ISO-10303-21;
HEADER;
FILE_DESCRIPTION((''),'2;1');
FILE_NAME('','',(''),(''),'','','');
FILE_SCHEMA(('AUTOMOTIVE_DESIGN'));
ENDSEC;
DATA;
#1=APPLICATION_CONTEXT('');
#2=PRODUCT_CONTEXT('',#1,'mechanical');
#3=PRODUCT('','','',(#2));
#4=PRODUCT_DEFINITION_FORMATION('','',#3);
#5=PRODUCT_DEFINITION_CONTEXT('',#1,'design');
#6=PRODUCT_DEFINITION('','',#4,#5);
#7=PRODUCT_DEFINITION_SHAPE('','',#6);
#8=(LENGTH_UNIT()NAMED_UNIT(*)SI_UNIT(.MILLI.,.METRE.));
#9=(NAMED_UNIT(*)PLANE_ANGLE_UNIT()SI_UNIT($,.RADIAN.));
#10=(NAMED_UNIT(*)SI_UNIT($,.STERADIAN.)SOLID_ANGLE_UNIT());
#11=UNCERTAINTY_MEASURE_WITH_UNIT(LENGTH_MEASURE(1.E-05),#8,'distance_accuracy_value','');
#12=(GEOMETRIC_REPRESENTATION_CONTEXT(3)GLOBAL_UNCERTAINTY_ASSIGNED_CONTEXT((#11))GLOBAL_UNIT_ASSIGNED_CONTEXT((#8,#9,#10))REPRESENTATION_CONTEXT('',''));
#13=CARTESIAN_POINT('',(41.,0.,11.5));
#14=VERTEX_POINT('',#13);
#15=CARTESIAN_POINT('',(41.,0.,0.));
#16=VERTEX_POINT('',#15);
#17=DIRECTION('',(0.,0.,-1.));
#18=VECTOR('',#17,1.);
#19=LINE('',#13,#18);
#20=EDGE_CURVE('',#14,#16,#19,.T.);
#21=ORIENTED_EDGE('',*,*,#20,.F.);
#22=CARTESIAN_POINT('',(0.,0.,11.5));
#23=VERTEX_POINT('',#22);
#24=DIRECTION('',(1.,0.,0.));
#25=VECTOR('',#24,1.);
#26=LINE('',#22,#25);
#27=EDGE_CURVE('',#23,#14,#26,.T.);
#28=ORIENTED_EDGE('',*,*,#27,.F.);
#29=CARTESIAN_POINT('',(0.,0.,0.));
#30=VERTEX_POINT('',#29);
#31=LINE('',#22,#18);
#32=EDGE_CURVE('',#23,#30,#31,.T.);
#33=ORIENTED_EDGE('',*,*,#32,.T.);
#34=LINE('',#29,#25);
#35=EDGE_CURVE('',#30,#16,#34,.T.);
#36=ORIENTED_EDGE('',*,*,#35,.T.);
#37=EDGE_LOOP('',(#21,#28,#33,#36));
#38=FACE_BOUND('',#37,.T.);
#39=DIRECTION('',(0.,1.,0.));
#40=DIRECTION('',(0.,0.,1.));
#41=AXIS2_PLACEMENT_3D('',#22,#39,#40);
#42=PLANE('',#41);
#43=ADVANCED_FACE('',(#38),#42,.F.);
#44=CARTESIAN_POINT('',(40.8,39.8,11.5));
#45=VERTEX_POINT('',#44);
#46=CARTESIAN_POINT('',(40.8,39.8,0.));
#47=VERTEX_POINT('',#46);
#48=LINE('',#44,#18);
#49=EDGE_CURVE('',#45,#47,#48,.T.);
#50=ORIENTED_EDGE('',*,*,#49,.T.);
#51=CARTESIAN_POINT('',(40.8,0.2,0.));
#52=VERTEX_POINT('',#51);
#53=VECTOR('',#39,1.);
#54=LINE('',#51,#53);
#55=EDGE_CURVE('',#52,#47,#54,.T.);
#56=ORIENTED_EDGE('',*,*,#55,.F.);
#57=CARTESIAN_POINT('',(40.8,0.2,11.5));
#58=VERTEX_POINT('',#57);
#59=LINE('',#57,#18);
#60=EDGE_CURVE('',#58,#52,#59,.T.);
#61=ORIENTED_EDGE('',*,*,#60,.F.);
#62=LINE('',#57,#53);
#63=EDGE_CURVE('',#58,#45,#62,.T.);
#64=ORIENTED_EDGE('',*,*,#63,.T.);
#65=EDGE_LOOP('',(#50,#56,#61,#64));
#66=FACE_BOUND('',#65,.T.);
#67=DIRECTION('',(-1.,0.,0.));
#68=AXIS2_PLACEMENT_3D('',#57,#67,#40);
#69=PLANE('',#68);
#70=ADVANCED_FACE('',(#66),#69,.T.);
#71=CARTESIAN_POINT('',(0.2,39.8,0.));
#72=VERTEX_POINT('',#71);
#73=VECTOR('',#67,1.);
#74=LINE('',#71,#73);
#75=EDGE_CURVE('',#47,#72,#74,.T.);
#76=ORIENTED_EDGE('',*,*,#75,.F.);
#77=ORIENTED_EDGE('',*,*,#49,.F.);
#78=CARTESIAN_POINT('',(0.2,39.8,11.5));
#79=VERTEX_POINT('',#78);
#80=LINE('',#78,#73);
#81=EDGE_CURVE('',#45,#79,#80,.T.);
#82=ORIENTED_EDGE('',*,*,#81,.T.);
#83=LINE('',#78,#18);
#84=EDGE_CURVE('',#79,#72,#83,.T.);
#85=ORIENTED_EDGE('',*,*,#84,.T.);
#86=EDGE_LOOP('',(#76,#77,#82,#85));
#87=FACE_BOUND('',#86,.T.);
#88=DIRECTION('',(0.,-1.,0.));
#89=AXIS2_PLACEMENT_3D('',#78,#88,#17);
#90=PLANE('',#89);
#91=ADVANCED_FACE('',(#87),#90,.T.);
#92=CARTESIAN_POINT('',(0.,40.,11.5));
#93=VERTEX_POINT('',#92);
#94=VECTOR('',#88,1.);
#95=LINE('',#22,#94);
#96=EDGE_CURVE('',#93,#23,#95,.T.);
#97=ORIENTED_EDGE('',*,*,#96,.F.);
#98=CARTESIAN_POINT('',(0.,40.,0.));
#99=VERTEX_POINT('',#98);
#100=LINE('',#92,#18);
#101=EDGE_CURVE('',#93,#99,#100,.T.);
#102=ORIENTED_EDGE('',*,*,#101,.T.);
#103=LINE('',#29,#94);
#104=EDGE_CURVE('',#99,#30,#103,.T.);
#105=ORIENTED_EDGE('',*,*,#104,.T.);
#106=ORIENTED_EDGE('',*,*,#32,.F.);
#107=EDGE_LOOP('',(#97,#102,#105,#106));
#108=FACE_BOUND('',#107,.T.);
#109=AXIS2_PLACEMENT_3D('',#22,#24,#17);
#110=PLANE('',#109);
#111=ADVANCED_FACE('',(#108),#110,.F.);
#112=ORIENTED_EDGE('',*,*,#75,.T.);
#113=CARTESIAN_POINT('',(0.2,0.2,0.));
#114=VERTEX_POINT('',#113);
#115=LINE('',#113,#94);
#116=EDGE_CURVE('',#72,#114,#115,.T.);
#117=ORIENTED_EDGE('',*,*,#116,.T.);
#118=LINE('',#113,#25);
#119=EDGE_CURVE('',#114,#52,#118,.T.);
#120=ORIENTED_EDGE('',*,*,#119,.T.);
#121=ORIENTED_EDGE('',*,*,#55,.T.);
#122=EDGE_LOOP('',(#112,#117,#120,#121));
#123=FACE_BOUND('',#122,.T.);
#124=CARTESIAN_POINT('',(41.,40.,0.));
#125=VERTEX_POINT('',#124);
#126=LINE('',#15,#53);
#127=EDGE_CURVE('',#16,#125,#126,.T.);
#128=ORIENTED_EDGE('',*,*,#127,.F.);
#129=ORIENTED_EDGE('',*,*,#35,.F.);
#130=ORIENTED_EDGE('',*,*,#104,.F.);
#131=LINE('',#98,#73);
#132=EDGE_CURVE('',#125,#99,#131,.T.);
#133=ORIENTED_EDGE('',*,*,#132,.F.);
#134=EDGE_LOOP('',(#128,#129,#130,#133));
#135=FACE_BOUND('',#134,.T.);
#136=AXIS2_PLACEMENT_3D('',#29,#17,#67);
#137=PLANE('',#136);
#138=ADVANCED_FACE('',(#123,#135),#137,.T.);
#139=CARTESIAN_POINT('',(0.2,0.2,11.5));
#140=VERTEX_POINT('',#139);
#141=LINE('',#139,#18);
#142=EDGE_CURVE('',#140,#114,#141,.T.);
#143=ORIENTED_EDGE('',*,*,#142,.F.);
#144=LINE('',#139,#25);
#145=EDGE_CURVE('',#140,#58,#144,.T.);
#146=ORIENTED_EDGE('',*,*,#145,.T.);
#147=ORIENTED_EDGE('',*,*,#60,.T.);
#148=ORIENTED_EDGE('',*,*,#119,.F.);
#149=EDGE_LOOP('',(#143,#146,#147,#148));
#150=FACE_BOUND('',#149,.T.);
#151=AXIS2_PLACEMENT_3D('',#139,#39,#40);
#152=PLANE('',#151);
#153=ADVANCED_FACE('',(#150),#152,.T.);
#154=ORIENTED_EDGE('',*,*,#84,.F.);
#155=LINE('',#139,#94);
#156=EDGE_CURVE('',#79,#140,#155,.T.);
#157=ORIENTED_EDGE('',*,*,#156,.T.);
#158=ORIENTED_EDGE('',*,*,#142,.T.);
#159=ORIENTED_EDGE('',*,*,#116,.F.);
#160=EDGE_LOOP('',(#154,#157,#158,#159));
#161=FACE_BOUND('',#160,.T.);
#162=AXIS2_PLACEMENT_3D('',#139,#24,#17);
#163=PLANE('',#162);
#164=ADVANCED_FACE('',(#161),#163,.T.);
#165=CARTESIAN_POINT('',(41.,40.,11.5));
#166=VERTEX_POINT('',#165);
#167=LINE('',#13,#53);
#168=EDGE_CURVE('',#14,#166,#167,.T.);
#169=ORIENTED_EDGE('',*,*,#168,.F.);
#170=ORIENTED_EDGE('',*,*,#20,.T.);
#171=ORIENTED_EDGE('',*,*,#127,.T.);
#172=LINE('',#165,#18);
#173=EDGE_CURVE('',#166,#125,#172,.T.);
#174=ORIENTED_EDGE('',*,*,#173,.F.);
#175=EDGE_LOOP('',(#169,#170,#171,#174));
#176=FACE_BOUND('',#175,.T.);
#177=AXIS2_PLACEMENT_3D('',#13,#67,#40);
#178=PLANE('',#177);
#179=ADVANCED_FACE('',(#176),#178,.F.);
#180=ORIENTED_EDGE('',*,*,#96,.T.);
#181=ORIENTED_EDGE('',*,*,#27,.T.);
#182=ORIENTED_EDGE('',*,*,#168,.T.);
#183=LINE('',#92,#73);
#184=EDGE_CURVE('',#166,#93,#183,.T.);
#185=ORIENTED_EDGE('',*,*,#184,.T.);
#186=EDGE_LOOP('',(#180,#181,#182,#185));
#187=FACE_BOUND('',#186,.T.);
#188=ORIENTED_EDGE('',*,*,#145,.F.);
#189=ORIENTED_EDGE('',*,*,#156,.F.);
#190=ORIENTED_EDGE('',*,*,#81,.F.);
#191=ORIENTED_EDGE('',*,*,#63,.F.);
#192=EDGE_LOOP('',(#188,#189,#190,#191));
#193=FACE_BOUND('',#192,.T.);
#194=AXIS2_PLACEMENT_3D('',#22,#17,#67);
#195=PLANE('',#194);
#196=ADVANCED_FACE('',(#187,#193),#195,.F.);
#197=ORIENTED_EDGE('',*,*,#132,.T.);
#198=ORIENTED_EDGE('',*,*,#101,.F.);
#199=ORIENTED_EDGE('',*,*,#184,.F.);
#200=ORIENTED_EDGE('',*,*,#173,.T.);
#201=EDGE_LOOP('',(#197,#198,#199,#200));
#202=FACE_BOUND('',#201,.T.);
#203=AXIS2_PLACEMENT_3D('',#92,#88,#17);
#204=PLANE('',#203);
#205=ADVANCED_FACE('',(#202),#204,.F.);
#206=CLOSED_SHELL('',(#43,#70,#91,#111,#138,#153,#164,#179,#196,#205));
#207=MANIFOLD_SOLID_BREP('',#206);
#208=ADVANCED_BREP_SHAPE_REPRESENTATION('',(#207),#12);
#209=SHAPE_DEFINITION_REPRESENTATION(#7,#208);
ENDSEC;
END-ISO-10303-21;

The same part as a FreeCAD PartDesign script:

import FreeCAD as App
import Part
import Sketcher

V = App.Vector
Q = App.Units.Quantity

doc = App.newDocument("Part")
body = doc.addObject("PartDesign::Body", "Body")

# Sketch on XY plane
sketch1 = doc.addObject("Sketcher::SketchObject", "Sketch")
body.addObject(sketch1)
sketch1.AttachmentSupport = (doc.XY_Plane, [""])
sketch1.MapMode = "FlatFace"
sketch1.addGeometry([
    Part.LineSegment(V(0, 40, 0), V(0, 0, 0)),  # 0
    Part.LineSegment(V(0, 0, 0), V(41, 0, 0)),  # 1
    Part.LineSegment(V(41, 0, 0), V(41, 40, 0)),  # 2
    Part.LineSegment(V(41, 40, 0), V(0, 40, 0)),  # 3
    Part.LineSegment(V(41, 0, 0), V(0, 0, 0)),  # 4
    Part.LineSegment(V(0, 0, 0), V(0, 40, 0)),  # 5
    Part.LineSegment(V(0, 40, 0), V(41, 40, 0)),  # 6
    Part.LineSegment(V(41, 40, 0), V(41, 0, 0)),  # 7
], False)
sketch1.addConstraint([
    Sketcher.Constraint("Coincident", 0, 2, 1, 1),
    Sketcher.Constraint("Coincident", 1, 2, 2, 1),
    Sketcher.Constraint("Coincident", 2, 2, 3, 1),
    Sketcher.Constraint("Coincident", 3, 2, 0, 1),
    Sketcher.Constraint("Coincident", 4, 2, 5, 1),
    Sketcher.Constraint("Coincident", 5, 2, 6, 1),
    Sketcher.Constraint("Coincident", 6, 2, 7, 1),
    Sketcher.Constraint("Coincident", 7, 2, 4, 1),
    Sketcher.Constraint("Vertical", 0),
    Sketcher.Constraint("Horizontal", 1),
    Sketcher.Constraint("Vertical", 2),
    Sketcher.Constraint("Horizontal", 3),
    Sketcher.Constraint("Horizontal", 4),
    Sketcher.Constraint("Vertical", 5),
    Sketcher.Constraint("Horizontal", 6),
    Sketcher.Constraint("Vertical", 7),
    Sketcher.Constraint("Coincident", 0, 2, -1, 1),
    Sketcher.Constraint("DistanceX", 1, 1, 1, 2, Q("41 mm")),
    Sketcher.Constraint("DistanceY", 0, 2, 0, 1, Q("40 mm")),
    Sketcher.Constraint("DistanceX", 4, 2, 4, 1, Q("40.6 mm")),
    Sketcher.Constraint("DistanceY", 5, 1, 5, 2, Q("39.6 mm")),
    Sketcher.Constraint("DistanceX", -1, 1, 4, 2, Q("0.2 mm")),
    Sketcher.Constraint("DistanceY", -1, 1, 4, 2, Q("0.2 mm")),
])
pad1 = doc.addObject("PartDesign::Pad", "Pad")
body.addObject(pad1)
pad1.Profile = sketch1
pad1.Length = 11.5

doc.recompute()
